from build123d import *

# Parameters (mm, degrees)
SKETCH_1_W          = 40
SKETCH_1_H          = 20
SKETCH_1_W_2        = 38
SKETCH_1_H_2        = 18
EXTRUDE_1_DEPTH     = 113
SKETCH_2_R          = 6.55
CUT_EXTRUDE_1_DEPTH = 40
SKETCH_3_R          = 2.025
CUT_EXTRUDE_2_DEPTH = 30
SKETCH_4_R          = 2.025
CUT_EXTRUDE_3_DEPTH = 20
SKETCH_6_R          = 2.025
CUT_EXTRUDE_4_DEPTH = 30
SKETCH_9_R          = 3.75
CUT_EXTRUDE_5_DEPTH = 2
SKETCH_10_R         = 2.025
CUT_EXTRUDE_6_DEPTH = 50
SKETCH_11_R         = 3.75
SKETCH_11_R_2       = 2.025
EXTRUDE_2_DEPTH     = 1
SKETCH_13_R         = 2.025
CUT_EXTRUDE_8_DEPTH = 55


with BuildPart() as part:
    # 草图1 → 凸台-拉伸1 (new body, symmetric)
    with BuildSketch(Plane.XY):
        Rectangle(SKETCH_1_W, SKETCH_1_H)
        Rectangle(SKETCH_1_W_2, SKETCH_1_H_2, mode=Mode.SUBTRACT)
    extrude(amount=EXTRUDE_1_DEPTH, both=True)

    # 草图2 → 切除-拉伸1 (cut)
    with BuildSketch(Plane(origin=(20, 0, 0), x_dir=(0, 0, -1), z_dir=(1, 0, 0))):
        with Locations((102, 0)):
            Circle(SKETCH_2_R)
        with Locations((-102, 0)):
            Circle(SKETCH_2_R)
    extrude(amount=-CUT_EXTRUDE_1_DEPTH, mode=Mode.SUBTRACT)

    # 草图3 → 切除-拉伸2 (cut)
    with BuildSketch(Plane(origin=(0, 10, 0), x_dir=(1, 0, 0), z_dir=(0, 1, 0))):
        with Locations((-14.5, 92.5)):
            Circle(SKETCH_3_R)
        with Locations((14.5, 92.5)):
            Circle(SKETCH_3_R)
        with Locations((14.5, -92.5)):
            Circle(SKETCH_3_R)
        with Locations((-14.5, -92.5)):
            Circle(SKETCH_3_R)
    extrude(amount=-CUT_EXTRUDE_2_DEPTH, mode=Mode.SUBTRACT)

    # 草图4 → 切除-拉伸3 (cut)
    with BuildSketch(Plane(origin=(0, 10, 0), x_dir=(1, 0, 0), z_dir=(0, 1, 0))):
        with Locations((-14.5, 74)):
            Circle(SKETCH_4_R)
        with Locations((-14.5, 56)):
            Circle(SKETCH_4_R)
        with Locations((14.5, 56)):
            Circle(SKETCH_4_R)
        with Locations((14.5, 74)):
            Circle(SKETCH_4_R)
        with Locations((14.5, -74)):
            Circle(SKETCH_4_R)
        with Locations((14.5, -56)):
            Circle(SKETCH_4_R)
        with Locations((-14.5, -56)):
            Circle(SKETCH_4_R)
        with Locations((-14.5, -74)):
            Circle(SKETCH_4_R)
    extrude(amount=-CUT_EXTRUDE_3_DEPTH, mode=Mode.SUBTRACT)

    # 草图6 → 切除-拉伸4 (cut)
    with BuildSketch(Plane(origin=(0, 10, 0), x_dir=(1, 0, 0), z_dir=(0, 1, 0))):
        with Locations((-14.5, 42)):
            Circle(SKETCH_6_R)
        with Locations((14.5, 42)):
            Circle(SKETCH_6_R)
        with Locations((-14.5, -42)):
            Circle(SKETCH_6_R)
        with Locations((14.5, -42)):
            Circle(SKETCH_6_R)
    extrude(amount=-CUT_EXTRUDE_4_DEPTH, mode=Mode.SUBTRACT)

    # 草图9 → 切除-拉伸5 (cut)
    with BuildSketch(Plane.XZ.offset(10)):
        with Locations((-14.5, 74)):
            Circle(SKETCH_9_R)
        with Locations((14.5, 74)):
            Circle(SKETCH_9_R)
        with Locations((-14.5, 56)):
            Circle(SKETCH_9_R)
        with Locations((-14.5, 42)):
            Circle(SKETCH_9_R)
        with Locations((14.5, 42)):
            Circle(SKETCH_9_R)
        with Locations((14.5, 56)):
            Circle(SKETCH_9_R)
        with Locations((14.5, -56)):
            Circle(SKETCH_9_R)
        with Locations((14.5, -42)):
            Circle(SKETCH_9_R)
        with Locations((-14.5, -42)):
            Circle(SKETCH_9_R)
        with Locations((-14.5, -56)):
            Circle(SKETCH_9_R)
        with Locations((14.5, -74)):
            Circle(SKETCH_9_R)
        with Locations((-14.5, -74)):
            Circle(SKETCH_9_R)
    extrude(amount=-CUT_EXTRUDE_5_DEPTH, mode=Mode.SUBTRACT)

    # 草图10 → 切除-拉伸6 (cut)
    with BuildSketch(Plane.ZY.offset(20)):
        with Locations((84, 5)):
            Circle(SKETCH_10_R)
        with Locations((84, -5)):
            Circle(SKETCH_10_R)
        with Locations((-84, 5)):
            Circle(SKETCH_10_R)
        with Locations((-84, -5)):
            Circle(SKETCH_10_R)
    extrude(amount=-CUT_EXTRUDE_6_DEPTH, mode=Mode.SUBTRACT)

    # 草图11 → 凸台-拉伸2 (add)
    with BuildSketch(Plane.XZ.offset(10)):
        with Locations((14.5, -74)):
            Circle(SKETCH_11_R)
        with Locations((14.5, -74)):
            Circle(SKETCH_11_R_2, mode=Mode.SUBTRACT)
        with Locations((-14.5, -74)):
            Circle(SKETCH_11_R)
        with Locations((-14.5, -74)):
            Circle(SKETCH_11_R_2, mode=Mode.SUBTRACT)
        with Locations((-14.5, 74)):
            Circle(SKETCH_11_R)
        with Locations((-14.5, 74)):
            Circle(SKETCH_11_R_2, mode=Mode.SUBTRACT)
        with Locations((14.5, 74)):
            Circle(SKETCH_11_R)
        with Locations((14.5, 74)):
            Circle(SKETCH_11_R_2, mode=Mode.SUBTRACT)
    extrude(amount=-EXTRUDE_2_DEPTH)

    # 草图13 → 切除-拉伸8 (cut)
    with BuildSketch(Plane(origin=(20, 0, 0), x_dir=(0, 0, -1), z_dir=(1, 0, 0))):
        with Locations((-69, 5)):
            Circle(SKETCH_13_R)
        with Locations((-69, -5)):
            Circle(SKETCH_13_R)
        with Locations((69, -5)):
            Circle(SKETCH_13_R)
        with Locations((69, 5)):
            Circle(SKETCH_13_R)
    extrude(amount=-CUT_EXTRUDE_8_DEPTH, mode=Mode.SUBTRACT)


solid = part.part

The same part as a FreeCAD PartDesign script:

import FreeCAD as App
import Part
import Sketcher

V = App.Vector
Q = App.Units.Quantity


def add_polygon(sketch, points):
    """Adds a closed chain of lines whose ends are joined by coincident constraints."""
    first, n = sketch.GeometryCount, len(points)
    for a, b in zip(points, points[1:] + points[:1]):
        sketch.addGeometry(Part.LineSegment(App.Vector(*a, 0), App.Vector(*b, 0)), False)
    for i in range(n):
        sketch.addConstraint(Sketcher.Constraint("Coincident", first + i, 2, first + (i + 1) % n, 1))

doc = App.newDocument("Part")
params = doc.addObject("Spreadsheet::Sheet", "Params")
for row, (alias, value) in enumerate([
    ("sketch1_width", "40 mm"),
    ("sketch1_width2", "38 mm"),
    ("sketch1_height", "20 mm"),
    ("sketch1_height2", "18 mm"),
    ("pad1_length", "226 mm"),
    ("sketch2_diameter", "13.1 mm"),
    ("pocket1_length", "40 mm"),
    ("sketch3_diameter", "4.05 mm"),
    ("pocket2_length", "30 mm"),
    ("sketch4_diameter", "4.05 mm"),
    ("pocket3_length", "20 mm"),
    ("sketch5_diameter", "4.05 mm"),
    ("pocket4_length", "30 mm"),
    ("sketch6_diameter", "7.5 mm"),
    ("pocket5_length", "2 mm"),
    ("sketch7_diameter", "4.05 mm"),
    ("pocket6_length", "50 mm"),
    ("sketch8_diameter", "7.5 mm"),
    ("sketch8_diameter2", "4.05 mm"),
    ("pad2_length", "1 mm"),
    ("sketch9_diameter", "4.05 mm"),
    ("pocket7_length", "55 mm"),
], start=1):
    params.set(f"A{row}", alias)
    params.set(f"B{row}", "=" + value)
    params.setAlias(f"B{row}", alias)

body = doc.addObject("PartDesign::Body", "Body")

# Sketch on XY plane
sketch1 = doc.addObject("Sketcher::SketchObject", "Sketch")
body.addObject(sketch1)
sketch1.AttachmentSupport = (doc.XY_Plane, [""])
sketch1.MapMode = "FlatFace"
add_polygon(sketch1, [(-20, 10), (-20, -10), (20, -10), (20, 10)])  # lines 0-3
add_polygon(sketch1, [(19, -9), (-19, -9), (-19, 9), (19, 9)])  # lines 4-7
sketch1.addConstraint(Sketcher.Constraint("Vertical", 0))
sketch1.addConstraint(Sketcher.Constraint("Horizontal", 1))
sketch1.addConstraint(Sketcher.Constraint("Vertical", 2))
sketch1.addConstraint(Sketcher.Constraint("Horizontal", 3))
sketch1.addConstraint(Sketcher.Constraint("Horizontal", 4))
sketch1.addConstraint(Sketcher.Constraint("Vertical", 5))
sketch1.addConstraint(Sketcher.Constraint("Horizontal", 6))
sketch1.addConstraint(Sketcher.Constraint("Vertical", 7))
sketch1.addConstraint(Sketcher.Constraint("Symmetric", 0, 2, 2, 2, -1, 1))
sketch1.addConstraint(Sketcher.Constraint("Symmetric", 4, 2, 6, 2, -1, 1))
sketch1.addConstraint(Sketcher.Constraint("DistanceX", 1, 1, 1, 2, Q("40 mm")))
sketch1.addConstraint(Sketcher.Constraint("DistanceX", 4, 2, 4, 1, Q("38 mm")))
sketch1.addConstraint(Sketcher.Constraint("DistanceY", 0, 2, 0, 1, Q("20 mm")))
sketch1.addConstraint(Sketcher.Constraint("DistanceY", 5, 1, 5, 2, Q("18 mm")))
sketch1.setExpression("Constraints[18]", "Params.sketch1_width")
sketch1.setExpression("Constraints[19]", "Params.sketch1_width2")
sketch1.setExpression("Constraints[20]", "Params.sketch1_height")
sketch1.setExpression("Constraints[21]", "Params.sketch1_height2")
pad1 = doc.addObject("PartDesign::Pad", "Pad")
body.addObject(pad1)
pad1.Profile = sketch1
pad1.setExpression("Length", "Params.pad1_length")
pad1.Midplane = True

# Sketch on YZ plane
sketch2 = doc.addObject("Sketcher::SketchObject", "Sketch001")
body.addObject(sketch2)
sketch2.AttachmentSupport = (doc.YZ_Plane, [""])
sketch2.MapMode = "FlatFace"
sketch2.AttachmentOffset = App.Placement(V(0, 0, 20), App.Rotation())
sketch2.addGeometry(Part.Circle(V(0, -102, 0), V(0, 0, 1), 7), False)
sketch2.addGeometry(Part.Circle(V(0, 102, 0), V(0, 0, 1), 7), False)
sketch2.addConstraint(Sketcher.Constraint("Equal", 0, 1))
sketch2.addConstraint(Sketcher.Constraint("Symmetric", 0, 3, 1, 3, -1, 1))
sketch2.addConstraint(Sketcher.Constraint("PointOnObject", 0, 3, -2))
sketch2.addConstraint(Sketcher.Constraint("Diameter", 0, Q("13.1 mm")))
sketch2.addConstraint(Sketcher.Constraint("DistanceY", 0, 3, -1, 1, Q("102 mm")))
sketch2.setExpression("Constraints[3]", "Params.sketch2_diameter")
pocket1 = doc.addObject("PartDesign::Pocket", "Pocket")
body.addObject(pocket1)
pocket1.Profile = sketch2
pocket1.setExpression("Length", "Params.pocket1_length")

# Sketch on XZ plane
sketch3 = doc.addObject("Sketcher::SketchObject", "Sketch002")
body.addObject(sketch3)
sketch3.AttachmentSupport = (doc.XZ_Plane, [""])
sketch3.MapMode = "FlatFace"
sketch3.AttachmentOffset = App.Placement(V(0, 0, -10), App.Rotation())
sketch3.addGeometry(Part.Circle(V(-14.5, -92.5, 0), V(0, 0, 1), 2), False)
sketch3.addGeometry(Part.Circle(V(14.5, -92.5, 0), V(0, 0, 1), 2), False)
sketch3.addGeometry(Part.Circle(V(14.5, 92.5, 0), V(0, 0, 1), 2), False)
sketch3.addGeometry(Part.Circle(V(-14.5, 92.5, 0), V(0, 0, 1), 2), False)
sketch3.addConstraint(Sketcher.Constraint("Equal", 0, 1))
sketch3.addConstraint(Sketcher.Constraint("Equal", 1, 2))
sketch3.addConstraint(Sketcher.Constraint("Equal", 2, 3))
sketch3.addConstraint(Sketcher.Constraint("Symmetric", 0, 3, 2, 3, -1, 1))
sketch3.addConstraint(Sketcher.Constraint("Symmetric", 1, 3, 3, 3, -1, 1))
sketch3.addConstraint(Sketcher.Constraint("Symmetric", 0, 3, 1, 3, -2))
sketch3.addConstraint(Sketcher.Constraint("Diameter", 0, Q("4.05 mm")))
sketch3.addConstraint(Sketcher.Constraint("DistanceX", 0, 3, 1, 3, Q("29 mm")))
sketch3.addConstraint(Sketcher.Constraint("DistanceY", 1, 3, 2, 3, Q("185 mm")))
sketch3.setExpression("Constraints[6]", "Params.sketch3_diameter")
pocket2 = doc.addObject("PartDesign::Pocket", "Pocket001")
body.addObject(pocket2)
pocket2.Profile = sketch3
pocket2.setExpression("Length", "Params.pocket2_length")
pocket2.Reversed = True

# Sketch on XZ plane
sketch4 = doc.addObject("Sketcher::SketchObject", "Sketch003")
body.addObject(sketch4)
sketch4.AttachmentSupport = (doc.XZ_Plane, [""])
sketch4.MapMode = "FlatFace"
sketch4.AttachmentOffset = App.Placement(V(0, 0, -10), App.Rotation())
sketch4.addGeometry(Part.Circle(V(-14.5, -74, 0), V(0, 0, 1), 2), False)
sketch4.addGeometry(Part.Circle(V(-14.5, -56, 0), V(0, 0, 1), 2), False)
sketch4.addGeometry(Part.Circle(V(14.5, -56, 0), V(0, 0, 1), 2), False)
sketch4.addGeometry(Part.Circle(V(14.5, -74, 0), V(0, 0, 1), 2), False)
sketch4.addGeometry(Part.Circle(V(14.5, 74, 0), V(0, 0, 1), 2), False)
sketch4.addGeometry(Part.Circle(V(14.5, 56, 0), V(0, 0, 1), 2), False)
sketch4.addGeometry(Part.Circle(V(-14.5, 56, 0), V(0, 0, 1), 2), False)
sketch4.addGeometry(Part.Circle(V(-14.5, 74, 0), V(0, 0, 1), 2), False)
sketch4.addConstraint(Sketcher.Constraint("Equal", 0, 1))
sketch4.addConstraint(Sketcher.Constraint("Equal", 1, 2))
sketch4.addConstraint(Sketcher.Constraint("Equal", 2, 3))
sketch4.addConstraint(Sketcher.Constraint("Equal", 3, 4))
sketch4.addConstraint(Sketcher.Constraint("Equal", 4, 5))
sketch4.addConstraint(Sketcher.Constraint("Equal", 5, 6))
sketch4.addConstraint(Sketcher.Constraint("Equal", 6, 7))
sketch4.addConstraint(Sketcher.Constraint("Symmetric", 0, 3, 4, 3, -1, 1))
sketch4.addConstraint(Sketcher.Constraint("Symmetric", 1, 3, 5, 3, -1, 1))
sketch4.addConstraint(Sketcher.Constraint("Symmetric", 2, 3, 6, 3, -1, 1))
sketch4.addConstraint(Sketcher.Constraint("Symmetric", 3, 3, 7, 3, -1, 1))
sketch4.addConstraint(Sketcher.Constraint("Symmetric", 1, 3, 2, 3, -2))
sketch4.addConstraint(Sketcher.Constraint("Symmetric", 0, 3, 3, 3, -2))
sketch4.addConstraint(Sketcher.Constraint("Vertical", 0, 3, 1, 3))
sketch4.addConstraint(Sketcher.Constraint("Diameter", 0, Q("4.05 mm")))
sketch4.addConstraint(Sketcher.Constraint("DistanceY", 0, 3, -1, 1, Q("74 mm")))
sketch4.addConstraint(Sketcher.Constraint("DistanceY", 1, 3, -1, 1, Q("56 mm")))
sketch4.addConstraint(Sketcher.Constraint("DistanceX", 1, 3, 2, 3, Q("29 mm")))
sketch4.setExpression("Constraints[14]", "Params.sketch4_diameter")
pocket3 = doc.addObject("PartDesign::Pocket", "Pocket002")
body.addObject(pocket3)
pocket3.Profile = sketch4
pocket3.setExpression("Length", "Params.pocket3_length")
pocket3.Reversed = True

# Sketch on XZ plane
sketch5 = doc.addObject("Sketcher::SketchObject", "Sketch004")
body.addObject(sketch5)
sketch5.AttachmentSupport = (doc.XZ_Plane, [""])
sketch5.MapMode = "FlatFace"
sketch5.AttachmentOffset = App.Placement(V(0, 0, -10), App.Rotation())
sketch5.addGeometry(Part.Circle(V(-14.5, -42, 0), V(0, 0, 1), 2), False)
sketch5.addGeometry(Part.Circle(V(14.5, -42, 0), V(0, 0, 1), 2), False)
sketch5.addGeometry(Part.Circle(V(-14.5, 42, 0), V(0, 0, 1), 2), False)
sketch5.addGeometry(Part.Circle(V(14.5, 42, 0), V(0, 0, 1), 2), False)
sketch5.addConstraint(Sketcher.Constraint("Equal", 0, 1))
sketch5.addConstraint(Sketcher.Constraint("Equal", 1, 2))
sketch5.addConstraint(Sketcher.Constraint("Equal", 2, 3))
sketch5.addConstraint(Sketcher.Constraint("Symmetric", 1, 3, 2, 3, -1, 1))
sketch5.addConstraint(Sketcher.Constraint("Symmetric", 0, 3, 3, 3, -1, 1))
sketch5.addConstraint(Sketcher.Constraint("Symmetric", 0, 3, 1, 3, -2))
sketch5.addConstraint(Sketcher.Constraint("Diameter", 0, Q("4.05 mm")))
sketch5.addConstraint(Sketcher.Constraint("DistanceY", 0, 3, -1, 1, Q("42 mm")))
sketch5.addConstraint(Sketcher.Constraint("DistanceX", 0, 3, 1, 3, Q("29 mm")))
sketch5.setExpression("Constraints[6]", "Params.sketch5_diameter")
pocket4 = doc.addObject("PartDesign::Pocket", "Pocket003")
body.addObject(pocket4)
pocket4.Profile = sketch5
pocket4.setExpression("Length", "Params.pocket4_length")
pocket4.Reversed = True

# Sketch on XZ plane
sketch6 = doc.addObject("Sketcher::SketchObject", "Sketch005")
body.addObject(sketch6)
sketch6.AttachmentSupport = (doc.XZ_Plane, [""])
sketch6.MapMode = "FlatFace"
sketch6.AttachmentOffset = App.Placement(V(0, 0, 10), App.Rotation())
sketch6.addGeometry(Part.Circle(V(-14.5, 74, 0), V(0, 0, 1), 3.8), False)
sketch6.addGeometry(Part.Circle(V(14.5, 74, 0), V(0, 0, 1), 3.8), False)
sketch6.addGeometry(Part.Circle(V(-14.5, 56, 0), V(0, 0, 1), 3.8), False)
sketch6.addGeometry(Part.Circle(V(-14.5, 42, 0), V(0, 0, 1), 3.8), False)
sketch6.addGeometry(Part.Circle(V(14.5, 42, 0), V(0, 0, 1), 3.8), False)
sketch6.addGeometry(Part.Circle(V(14.5, 56, 0), V(0, 0, 1), 3.8), False)
sketch6.addGeometry(Part.Circle(V(14.5, -56, 0), V(0, 0, 1), 3.8), False)
sketch6.addGeometry(Part.Circle(V(14.5, -42, 0), V(0, 0, 1), 3.8), False)
sketch6.addGeometry(Part.Circle(V(-14.5, -42, 0), V(0, 0, 1), 3.8), False)
sketch6.addGeometry(Part.Circle(V(-14.5, -56, 0), V(0, 0, 1), 3.8), False)
sketch6.addGeometry(Part.Circle(V(14.5, -74, 0), V(0, 0, 1), 3.8), False)
sketch6.addGeometry(Part.Circle(V(-14.5, -74, 0), V(0, 0, 1), 3.8), False)
sketch6.addConstraint(Sketcher.Constraint("Equal", 0, 1))
sketch6.addConstraint(Sketcher.Constraint("Equal", 1, 2))
sketch6.addConstraint(Sketcher.Constraint("Equal", 2, 3))
sketch6.addConstraint(Sketcher.Constraint("Equal", 3, 4))
sketch6.addConstraint(Sketcher.Constraint("Equal", 4, 5))
sketch6.addConstraint(Sketcher.Constraint("Equal", 5, 6))
sketch6.addConstraint(Sketcher.Constraint("Equal", 6, 7))
sketch6.addConstraint(Sketcher.Constraint("Equal", 7, 8))
sketch6.addConstraint(Sketcher.Constraint("Equal", 8, 9))
sketch6.addConstraint(Sketcher.Constraint("Equal", 9, 10))
sketch6.addConstraint(Sketcher.Constraint("Equal", 10, 11))
sketch6.addConstraint(Sketcher.Constraint("Symmetric", 2, 3, 6, 3, -1, 1))
sketch6.addConstraint(Sketcher.Constraint("Symmetric", 3, 3, 7, 3, -1, 1))
sketch6.addConstraint(Sketcher.Constraint("Symmetric", 4, 3, 8, 3, -1, 1))
sketch6.addConstraint(Sketcher.Constraint("Symmetric", 5, 3, 9, 3, -1, 1))
sketch6.addConstraint(Sketcher.Constraint("Symmetric", 0, 3, 10, 3, -1, 1))
sketch6.addConstraint(Sketcher.Constraint("Symmetric", 1, 3, 11, 3, -1, 1))
sketch6.addConstraint(Sketcher.Constraint("Symmetric", 0, 3, 1, 3, -2))
sketch6.addConstraint(Sketcher.Constraint("Symmetric", 3, 3, 4, 3, -2))
sketch6.addConstraint(Sketcher.Constraint("Symmetric", 2, 3, 5, 3, -2))
sketch6.addConstraint(Sketcher.Constraint("Vertical", 0, 3, 2, 3))
sketch6.addConstraint(Sketcher.Constraint("Vertical", 2, 3, 3, 3))
sketch6.addConstraint(Sketcher.Constraint("Diameter", 0, Q("7.5 mm")))
sketch6.addConstraint(Sketcher.Constraint("DistanceY", -1, 1, 0, 3, Q("74 mm")))
sketch6.addConstraint(Sketcher.Constraint("DistanceY", -1, 1, 2, 3, Q("56 mm")))
sketch6.addConstraint(Sketcher.Constraint("DistanceY", -1, 1, 3, 3, Q("42 mm")))
sketch6.addConstraint(Sketcher.Constraint("DistanceX", 0, 3, 1, 3, Q("29 mm")))
sketch6.setExpression("Constraints[22]", "Params.sketch6_diameter")
pocket5 = doc.addObject("PartDesign::Pocket", "Pocket004")
body.addObject(pocket5)
pocket5.Profile = sketch6
pocket5.setExpression("Length", "Params.pocket5_length")

# Sketch on YZ plane
sketch7 = doc.addObject("Sketcher::SketchObject", "Sketch006")
body.addObject(sketch7)
sketch7.AttachmentSupport = (doc.YZ_Plane, [""])
sketch7.MapMode = "FlatFace"
sketch7.AttachmentOffset = App.Placement(V(0, 0, -20), App.Rotation())
sketch7.addGeometry(Part.Circle(V(5, 84, 0), V(0, 0, 1), 2), False)
sketch7.addGeometry(Part.Circle(V(-5, 84, 0), V(0, 0, 1), 2), False)
sketch7.addGeometry(Part.Circle(V(5, -84, 0), V(0, 0, 1), 2), False)
sketch7.addGeometry(Part.Circle(V(-5, -84, 0), V(0, 0, 1), 2), False)
sketch7.addConstraint(Sketcher.Constraint("Equal", 0, 1))
sketch7.addConstraint(Sketcher.Constraint("Equal", 1, 2))
sketch7.addConstraint(Sketcher.Constraint("Equal", 2, 3))
sketch7.addConstraint(Sketcher.Constraint("Symmetric", 1, 3, 2, 3, -1, 1))
sketch7.addConstraint(Sketcher.Constraint("Symmetric", 0, 3, 3, 3, -1, 1))
sketch7.addConstraint(Sketcher.Constraint("Symmetric", 0, 3, 1, 3, -2))
sketch7.addConstraint(Sketcher.Constraint("Diameter", 0, Q("4.05 mm")))
sketch7.addConstraint(Sketcher.Constraint("DistanceX", -1, 1, 0, 3, Q("5 mm")))
sketch7.addConstraint(Sketcher.Constraint("DistanceY", -1, 1, 0, 3, Q("84 mm")))
sketch7.setExpression("Constraints[6]", "Params.sketch7_diameter")
pocket6 = doc.addObject("PartDesign::Pocket", "Pocket005")
body.addObject(pocket6)
pocket6.Profile = sketch7
pocket6.setExpression("Length", "Params.pocket6_length")
pocket6.Reversed = True

# Sketch on XZ plane
sketch8 = doc.addObject("Sketcher::SketchObject", "Sketch007")
body.addObject(sketch8)
sketch8.AttachmentSupport = (doc.XZ_Plane, [""])
sketch8.MapMode = "FlatFace"
sketch8.AttachmentOffset = App.Placement(V(0, 0, 10), App.Rotation())
sketch8.addGeometry(Part.Circle(V(14.5, -74, 0), V(0, 0, 1), 3.8), False)
sketch8.addGeometry(Part.Circle(V(14.5, -74, 0), V(0, 0, 1), 2), False)
sketch8.addGeometry(Part.Circle(V(-14.5, -74, 0), V(0, 0, 1), 3.8), False)
sketch8.addGeometry(Part.Circle(V(-14.5, -74, 0), V(0, 0, 1), 2), False)
sketch8.addGeometry(Part.Circle(V(-14.5, 74, 0), V(0, 0, 1), 3.8), False)
sketch8.addGeometry(Part.Circle(V(-14.5, 74, 0), V(0, 0, 1), 2), False)
sketch8.addGeometry(Part.Circle(V(14.5, 74, 0), V(0, 0, 1), 3.8), False)
sketch8.addGeometry(Part.Circle(V(14.5, 74, 0), V(0, 0, 1), 2), False)
sketch8.addConstraint(Sketcher.Constraint("Coincident", 1, 3, 0, 3))
sketch8.addConstraint(Sketcher.Constraint("Coincident", 3, 3, 2, 3))
sketch8.addConstraint(Sketcher.Constraint("Coincident", 5, 3, 4, 3))
sketch8.addConstraint(Sketcher.Constraint("Coincident", 7, 3, 6, 3))
sketch8.addConstraint(Sketcher.Constraint("Equal", 0, 2))
sketch8.addConstraint(Sketcher.Constraint("Equal", 1, 3))
sketch8.addConstraint(Sketcher.Constraint("Equal", 2, 4))
sketch8.addConstraint(Sketcher.Constraint("Equal", 3, 5))
sketch8.addConstraint(Sketcher.Constraint("Equal", 4, 6))
sketch8.addConstraint(Sketcher.Constraint("Equal", 5, 7))
sketch8.addConstraint(Sketcher.Constraint("Symmetric", 0, 3, 4, 3, -1, 1))
sketch8.addConstraint(Sketcher.Constraint("Symmetric", 2, 3, 6, 3, -1, 1))
sketch8.addConstraint(Sketcher.Constraint("Symmetric", 0, 3, 2, 3, -2))
sketch8.addConstraint(Sketcher.Constraint("Diameter", 0, Q("7.5 mm")))
sketch8.addConstraint(Sketcher.Constraint("Diameter", 1, Q("4.05 mm")))
sketch8.addConstraint(Sketcher.Constraint("DistanceY", 0, 3, -1, 1, Q("74 mm")))
sketch8.addConstraint(Sketcher.Constraint("DistanceX", 2, 3, 0, 3, Q("29 mm")))
sketch8.setExpression("Constraints[13]", "Params.sketch8_diameter")
sketch8.setExpression("Constraints[14]", "Params.sketch8_diameter2")
pad2 = doc.addObject("PartDesign::Pad", "Pad001")
body.addObject(pad2)
pad2.Profile = sketch8
pad2.setExpression("Length", "Params.pad2_length")
pad2.Reversed = True

# Sketch on YZ plane
sketch9 = doc.addObject("Sketcher::SketchObject", "Sketch008")
body.addObject(sketch9)
sketch9.AttachmentSupport = (doc.YZ_Plane, [""])
sketch9.MapMode = "FlatFace"
sketch9.AttachmentOffset = App.Placement(V(0, 0, 20), App.Rotation())
sketch9.addGeometry(Part.Circle(V(5, 69, 0), V(0, 0, 1), 2), False)
sketch9.addGeometry(Part.Circle(V(-5, 69, 0), V(0, 0, 1), 2), False)
sketch9.addGeometry(Part.Circle(V(-5, -69, 0), V(0, 0, 1), 2), False)
sketch9.addGeometry(Part.Circle(V(5, -69, 0), V(0, 0, 1), 2), False)
sketch9.addConstraint(Sketcher.Constraint("Equal", 0, 1))
sketch9.addConstraint(Sketcher.Constraint("Equal", 1, 2))
sketch9.addConstraint(Sketcher.Constraint("Equal", 2, 3))
sketch9.addConstraint(Sketcher.Constraint("Symmetric", 0, 3, 2, 3, -1, 1))
sketch9.addConstraint(Sketcher.Constraint("Symmetric", 1, 3, 3, 3, -1, 1))
sketch9.addConstraint(Sketcher.Constraint("Symmetric", 0, 3, 1, 3, -2))
sketch9.addConstraint(Sketcher.Constraint("Diameter", 0, Q("4.05 mm")))
sketch9.addConstraint(Sketcher.Constraint("DistanceX", -1, 1, 0, 3, Q("5 mm")))
sketch9.addConstraint(Sketcher.Constraint("DistanceY", -1, 1, 0, 3, Q("69 mm")))
sketch9.setExpression("Constraints[6]", "Params.sketch9_diameter")
pocket7 = doc.addObject("PartDesign::Pocket", "Pocket006")
body.addObject(pocket7)
pocket7.Profile = sketch9
pocket7.setExpression("Length", "Params.pocket7_length")

doc.recompute()
